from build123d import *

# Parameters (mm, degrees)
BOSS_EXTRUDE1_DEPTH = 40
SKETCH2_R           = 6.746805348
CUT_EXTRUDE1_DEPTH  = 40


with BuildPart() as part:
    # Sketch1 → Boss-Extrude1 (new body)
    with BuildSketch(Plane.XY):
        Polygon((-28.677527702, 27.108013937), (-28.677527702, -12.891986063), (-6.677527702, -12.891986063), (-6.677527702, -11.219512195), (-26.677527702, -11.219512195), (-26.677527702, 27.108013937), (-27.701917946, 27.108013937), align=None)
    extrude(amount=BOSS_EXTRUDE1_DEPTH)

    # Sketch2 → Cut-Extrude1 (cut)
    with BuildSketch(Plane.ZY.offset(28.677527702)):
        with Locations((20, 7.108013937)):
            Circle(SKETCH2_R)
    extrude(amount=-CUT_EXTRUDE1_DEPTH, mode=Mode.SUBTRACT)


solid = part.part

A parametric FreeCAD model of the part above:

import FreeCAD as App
import Part
import Sketcher
Q = App.Units.Quantity

doc = App.newDocument("Part")
params = doc.addObject("Spreadsheet::Sheet", "Params")
for row, (alias, value) in enumerate([
    ("sketch1_width", "22 mm"),
    ("sketch1_width2", "20 mm"),
    ("sketch1_height", "40 mm"),
    ("pad1_length", "40 mm"),
    ("pocket1_length", "40 mm"),
], start=1):
    params.set(f"A{row}", alias)
    params.set(f"B{row}", "=" + value)
    params.setAlias(f"B{row}", alias)

body = doc.addObject("PartDesign::Body", "Body")

sketch1 = body.newObject("Sketcher::SketchObject", "Sketch")
sketch1.AttachmentSupport = (doc.getObject("XY_Plane"), [""])
sketch1.MapMode = "FlatFace"
sketch1.addGeometry(Part.LineSegment(App.Vector(-28.677528, 27.108014, 0), App.Vector(-28.677528, -12.891986, 0)), False)
sketch1.addGeometry(Part.LineSegment(App.Vector(-28.677528, -12.891986, 0), App.Vector(-6.677528, -12.891986, 0)), False)
sketch1.addGeometry(Part.LineSegment(App.Vector(-6.677528, -12.891986, 0), App.Vector(-6.677528, -11.219512, 0)), False)
sketch1.addGeometry(Part.LineSegment(App.Vector(-6.677528, -11.219512, 0), App.Vector(-26.677528, -11.219512, 0)), False)
sketch1.addGeometry(Part.LineSegment(App.Vector(-26.677528, -11.219512, 0), App.Vector(-26.677528, 27.108014, 0)), False)
sketch1.addGeometry(Part.LineSegment(App.Vector(-26.677528, 27.108014, 0), App.Vector(-28.677528, 27.108014, 0)), False)
sketch1.addConstraint(Sketcher.Constraint("Coincident", 0, 2, 1, 1))
sketch1.addConstraint(Sketcher.Constraint("Coincident", 1, 2, 2, 1))
sketch1.addConstraint(Sketcher.Constraint("Coincident", 2, 2, 3, 1))
sketch1.addConstraint(Sketcher.Constraint("Coincident", 3, 2, 4, 1))
sketch1.addConstraint(Sketcher.Constraint("Coincident", 4, 2, 5, 1))
sketch1.addConstraint(Sketcher.Constraint("Coincident", 5, 2, 0, 1))
sketch1.addConstraint(Sketcher.Constraint("Vertical", 0))
sketch1.addConstraint(Sketcher.Constraint("Horizontal", 1))
sketch1.addConstraint(Sketcher.Constraint("Vertical", 2))
sketch1.addConstraint(Sketcher.Constraint("Horizontal", 3))
sketch1.addConstraint(Sketcher.Constraint("Vertical", 4))
sketch1.addConstraint(Sketcher.Constraint("Horizontal", 5))
sketch1.addConstraint(Sketcher.Constraint("DistanceX", 1, 1, 1, 2, Q("22 mm")))
sketch1.addConstraint(Sketcher.Constraint("DistanceX", 3, 2, 3, 1, Q("20 mm")))
sketch1.addConstraint(Sketcher.Constraint("DistanceY", 0, 2, 0, 1, Q("40 mm")))
sketch1.addConstraint(Sketcher.Constraint("DistanceY", 2, 1, 2, 2, Q("1.672474 mm")))
sketch1.addConstraint(Sketcher.Constraint("DistanceX", 0, 2, -1, 1, Q("28.677528 mm")))
sketch1.addConstraint(Sketcher.Constraint("DistanceY", 0, 2, -1, 1, Q("12.891986 mm")))
sketch1.setExpression("Constraints[12]", "Params.sketch1_width")
sketch1.setExpression("Constraints[13]", "Params.sketch1_width2")
sketch1.setExpression("Constraints[14]", "Params.sketch1_height")
pad1 = body.newObject("PartDesign::Pad", "Pad")
pad1.Profile = sketch1
pad1.setExpression("Length", "Params.pad1_length")

sketch2 = body.newObject("Sketcher::SketchObject", "Sketch001")
sketch2.AttachmentSupport = (doc.getObject("YZ_Plane"), [""])
sketch2.MapMode = "FlatFace"
sketch2.AttachmentOffset = App.Placement(App.Vector(0, 0, -28.677528), App.Rotation())
sketch2.addGeometry(Part.Circle(App.Vector(7.108014, 20, 0), App.Vector(0, 0, 1), 6.746805), False)
sketch2.addConstraint(Sketcher.Constraint("DistanceY", -1, 1, 0, 3, Q("20 mm")))
sketch2.addConstraint(Sketcher.Constraint("Diameter", 0, Q("13.493611 mm")))
sketch2.addConstraint(Sketcher.Constraint("DistanceX", -1, 1, 0, 3, Q("7.108014 mm")))
pocket1 = body.newObject("PartDesign::Pocket", "Pocket")
pocket1.Profile = sketch2
pocket1.setExpression("Length", "Params.pocket1_length")
pocket1.Reversed = True

doc.recompute()
